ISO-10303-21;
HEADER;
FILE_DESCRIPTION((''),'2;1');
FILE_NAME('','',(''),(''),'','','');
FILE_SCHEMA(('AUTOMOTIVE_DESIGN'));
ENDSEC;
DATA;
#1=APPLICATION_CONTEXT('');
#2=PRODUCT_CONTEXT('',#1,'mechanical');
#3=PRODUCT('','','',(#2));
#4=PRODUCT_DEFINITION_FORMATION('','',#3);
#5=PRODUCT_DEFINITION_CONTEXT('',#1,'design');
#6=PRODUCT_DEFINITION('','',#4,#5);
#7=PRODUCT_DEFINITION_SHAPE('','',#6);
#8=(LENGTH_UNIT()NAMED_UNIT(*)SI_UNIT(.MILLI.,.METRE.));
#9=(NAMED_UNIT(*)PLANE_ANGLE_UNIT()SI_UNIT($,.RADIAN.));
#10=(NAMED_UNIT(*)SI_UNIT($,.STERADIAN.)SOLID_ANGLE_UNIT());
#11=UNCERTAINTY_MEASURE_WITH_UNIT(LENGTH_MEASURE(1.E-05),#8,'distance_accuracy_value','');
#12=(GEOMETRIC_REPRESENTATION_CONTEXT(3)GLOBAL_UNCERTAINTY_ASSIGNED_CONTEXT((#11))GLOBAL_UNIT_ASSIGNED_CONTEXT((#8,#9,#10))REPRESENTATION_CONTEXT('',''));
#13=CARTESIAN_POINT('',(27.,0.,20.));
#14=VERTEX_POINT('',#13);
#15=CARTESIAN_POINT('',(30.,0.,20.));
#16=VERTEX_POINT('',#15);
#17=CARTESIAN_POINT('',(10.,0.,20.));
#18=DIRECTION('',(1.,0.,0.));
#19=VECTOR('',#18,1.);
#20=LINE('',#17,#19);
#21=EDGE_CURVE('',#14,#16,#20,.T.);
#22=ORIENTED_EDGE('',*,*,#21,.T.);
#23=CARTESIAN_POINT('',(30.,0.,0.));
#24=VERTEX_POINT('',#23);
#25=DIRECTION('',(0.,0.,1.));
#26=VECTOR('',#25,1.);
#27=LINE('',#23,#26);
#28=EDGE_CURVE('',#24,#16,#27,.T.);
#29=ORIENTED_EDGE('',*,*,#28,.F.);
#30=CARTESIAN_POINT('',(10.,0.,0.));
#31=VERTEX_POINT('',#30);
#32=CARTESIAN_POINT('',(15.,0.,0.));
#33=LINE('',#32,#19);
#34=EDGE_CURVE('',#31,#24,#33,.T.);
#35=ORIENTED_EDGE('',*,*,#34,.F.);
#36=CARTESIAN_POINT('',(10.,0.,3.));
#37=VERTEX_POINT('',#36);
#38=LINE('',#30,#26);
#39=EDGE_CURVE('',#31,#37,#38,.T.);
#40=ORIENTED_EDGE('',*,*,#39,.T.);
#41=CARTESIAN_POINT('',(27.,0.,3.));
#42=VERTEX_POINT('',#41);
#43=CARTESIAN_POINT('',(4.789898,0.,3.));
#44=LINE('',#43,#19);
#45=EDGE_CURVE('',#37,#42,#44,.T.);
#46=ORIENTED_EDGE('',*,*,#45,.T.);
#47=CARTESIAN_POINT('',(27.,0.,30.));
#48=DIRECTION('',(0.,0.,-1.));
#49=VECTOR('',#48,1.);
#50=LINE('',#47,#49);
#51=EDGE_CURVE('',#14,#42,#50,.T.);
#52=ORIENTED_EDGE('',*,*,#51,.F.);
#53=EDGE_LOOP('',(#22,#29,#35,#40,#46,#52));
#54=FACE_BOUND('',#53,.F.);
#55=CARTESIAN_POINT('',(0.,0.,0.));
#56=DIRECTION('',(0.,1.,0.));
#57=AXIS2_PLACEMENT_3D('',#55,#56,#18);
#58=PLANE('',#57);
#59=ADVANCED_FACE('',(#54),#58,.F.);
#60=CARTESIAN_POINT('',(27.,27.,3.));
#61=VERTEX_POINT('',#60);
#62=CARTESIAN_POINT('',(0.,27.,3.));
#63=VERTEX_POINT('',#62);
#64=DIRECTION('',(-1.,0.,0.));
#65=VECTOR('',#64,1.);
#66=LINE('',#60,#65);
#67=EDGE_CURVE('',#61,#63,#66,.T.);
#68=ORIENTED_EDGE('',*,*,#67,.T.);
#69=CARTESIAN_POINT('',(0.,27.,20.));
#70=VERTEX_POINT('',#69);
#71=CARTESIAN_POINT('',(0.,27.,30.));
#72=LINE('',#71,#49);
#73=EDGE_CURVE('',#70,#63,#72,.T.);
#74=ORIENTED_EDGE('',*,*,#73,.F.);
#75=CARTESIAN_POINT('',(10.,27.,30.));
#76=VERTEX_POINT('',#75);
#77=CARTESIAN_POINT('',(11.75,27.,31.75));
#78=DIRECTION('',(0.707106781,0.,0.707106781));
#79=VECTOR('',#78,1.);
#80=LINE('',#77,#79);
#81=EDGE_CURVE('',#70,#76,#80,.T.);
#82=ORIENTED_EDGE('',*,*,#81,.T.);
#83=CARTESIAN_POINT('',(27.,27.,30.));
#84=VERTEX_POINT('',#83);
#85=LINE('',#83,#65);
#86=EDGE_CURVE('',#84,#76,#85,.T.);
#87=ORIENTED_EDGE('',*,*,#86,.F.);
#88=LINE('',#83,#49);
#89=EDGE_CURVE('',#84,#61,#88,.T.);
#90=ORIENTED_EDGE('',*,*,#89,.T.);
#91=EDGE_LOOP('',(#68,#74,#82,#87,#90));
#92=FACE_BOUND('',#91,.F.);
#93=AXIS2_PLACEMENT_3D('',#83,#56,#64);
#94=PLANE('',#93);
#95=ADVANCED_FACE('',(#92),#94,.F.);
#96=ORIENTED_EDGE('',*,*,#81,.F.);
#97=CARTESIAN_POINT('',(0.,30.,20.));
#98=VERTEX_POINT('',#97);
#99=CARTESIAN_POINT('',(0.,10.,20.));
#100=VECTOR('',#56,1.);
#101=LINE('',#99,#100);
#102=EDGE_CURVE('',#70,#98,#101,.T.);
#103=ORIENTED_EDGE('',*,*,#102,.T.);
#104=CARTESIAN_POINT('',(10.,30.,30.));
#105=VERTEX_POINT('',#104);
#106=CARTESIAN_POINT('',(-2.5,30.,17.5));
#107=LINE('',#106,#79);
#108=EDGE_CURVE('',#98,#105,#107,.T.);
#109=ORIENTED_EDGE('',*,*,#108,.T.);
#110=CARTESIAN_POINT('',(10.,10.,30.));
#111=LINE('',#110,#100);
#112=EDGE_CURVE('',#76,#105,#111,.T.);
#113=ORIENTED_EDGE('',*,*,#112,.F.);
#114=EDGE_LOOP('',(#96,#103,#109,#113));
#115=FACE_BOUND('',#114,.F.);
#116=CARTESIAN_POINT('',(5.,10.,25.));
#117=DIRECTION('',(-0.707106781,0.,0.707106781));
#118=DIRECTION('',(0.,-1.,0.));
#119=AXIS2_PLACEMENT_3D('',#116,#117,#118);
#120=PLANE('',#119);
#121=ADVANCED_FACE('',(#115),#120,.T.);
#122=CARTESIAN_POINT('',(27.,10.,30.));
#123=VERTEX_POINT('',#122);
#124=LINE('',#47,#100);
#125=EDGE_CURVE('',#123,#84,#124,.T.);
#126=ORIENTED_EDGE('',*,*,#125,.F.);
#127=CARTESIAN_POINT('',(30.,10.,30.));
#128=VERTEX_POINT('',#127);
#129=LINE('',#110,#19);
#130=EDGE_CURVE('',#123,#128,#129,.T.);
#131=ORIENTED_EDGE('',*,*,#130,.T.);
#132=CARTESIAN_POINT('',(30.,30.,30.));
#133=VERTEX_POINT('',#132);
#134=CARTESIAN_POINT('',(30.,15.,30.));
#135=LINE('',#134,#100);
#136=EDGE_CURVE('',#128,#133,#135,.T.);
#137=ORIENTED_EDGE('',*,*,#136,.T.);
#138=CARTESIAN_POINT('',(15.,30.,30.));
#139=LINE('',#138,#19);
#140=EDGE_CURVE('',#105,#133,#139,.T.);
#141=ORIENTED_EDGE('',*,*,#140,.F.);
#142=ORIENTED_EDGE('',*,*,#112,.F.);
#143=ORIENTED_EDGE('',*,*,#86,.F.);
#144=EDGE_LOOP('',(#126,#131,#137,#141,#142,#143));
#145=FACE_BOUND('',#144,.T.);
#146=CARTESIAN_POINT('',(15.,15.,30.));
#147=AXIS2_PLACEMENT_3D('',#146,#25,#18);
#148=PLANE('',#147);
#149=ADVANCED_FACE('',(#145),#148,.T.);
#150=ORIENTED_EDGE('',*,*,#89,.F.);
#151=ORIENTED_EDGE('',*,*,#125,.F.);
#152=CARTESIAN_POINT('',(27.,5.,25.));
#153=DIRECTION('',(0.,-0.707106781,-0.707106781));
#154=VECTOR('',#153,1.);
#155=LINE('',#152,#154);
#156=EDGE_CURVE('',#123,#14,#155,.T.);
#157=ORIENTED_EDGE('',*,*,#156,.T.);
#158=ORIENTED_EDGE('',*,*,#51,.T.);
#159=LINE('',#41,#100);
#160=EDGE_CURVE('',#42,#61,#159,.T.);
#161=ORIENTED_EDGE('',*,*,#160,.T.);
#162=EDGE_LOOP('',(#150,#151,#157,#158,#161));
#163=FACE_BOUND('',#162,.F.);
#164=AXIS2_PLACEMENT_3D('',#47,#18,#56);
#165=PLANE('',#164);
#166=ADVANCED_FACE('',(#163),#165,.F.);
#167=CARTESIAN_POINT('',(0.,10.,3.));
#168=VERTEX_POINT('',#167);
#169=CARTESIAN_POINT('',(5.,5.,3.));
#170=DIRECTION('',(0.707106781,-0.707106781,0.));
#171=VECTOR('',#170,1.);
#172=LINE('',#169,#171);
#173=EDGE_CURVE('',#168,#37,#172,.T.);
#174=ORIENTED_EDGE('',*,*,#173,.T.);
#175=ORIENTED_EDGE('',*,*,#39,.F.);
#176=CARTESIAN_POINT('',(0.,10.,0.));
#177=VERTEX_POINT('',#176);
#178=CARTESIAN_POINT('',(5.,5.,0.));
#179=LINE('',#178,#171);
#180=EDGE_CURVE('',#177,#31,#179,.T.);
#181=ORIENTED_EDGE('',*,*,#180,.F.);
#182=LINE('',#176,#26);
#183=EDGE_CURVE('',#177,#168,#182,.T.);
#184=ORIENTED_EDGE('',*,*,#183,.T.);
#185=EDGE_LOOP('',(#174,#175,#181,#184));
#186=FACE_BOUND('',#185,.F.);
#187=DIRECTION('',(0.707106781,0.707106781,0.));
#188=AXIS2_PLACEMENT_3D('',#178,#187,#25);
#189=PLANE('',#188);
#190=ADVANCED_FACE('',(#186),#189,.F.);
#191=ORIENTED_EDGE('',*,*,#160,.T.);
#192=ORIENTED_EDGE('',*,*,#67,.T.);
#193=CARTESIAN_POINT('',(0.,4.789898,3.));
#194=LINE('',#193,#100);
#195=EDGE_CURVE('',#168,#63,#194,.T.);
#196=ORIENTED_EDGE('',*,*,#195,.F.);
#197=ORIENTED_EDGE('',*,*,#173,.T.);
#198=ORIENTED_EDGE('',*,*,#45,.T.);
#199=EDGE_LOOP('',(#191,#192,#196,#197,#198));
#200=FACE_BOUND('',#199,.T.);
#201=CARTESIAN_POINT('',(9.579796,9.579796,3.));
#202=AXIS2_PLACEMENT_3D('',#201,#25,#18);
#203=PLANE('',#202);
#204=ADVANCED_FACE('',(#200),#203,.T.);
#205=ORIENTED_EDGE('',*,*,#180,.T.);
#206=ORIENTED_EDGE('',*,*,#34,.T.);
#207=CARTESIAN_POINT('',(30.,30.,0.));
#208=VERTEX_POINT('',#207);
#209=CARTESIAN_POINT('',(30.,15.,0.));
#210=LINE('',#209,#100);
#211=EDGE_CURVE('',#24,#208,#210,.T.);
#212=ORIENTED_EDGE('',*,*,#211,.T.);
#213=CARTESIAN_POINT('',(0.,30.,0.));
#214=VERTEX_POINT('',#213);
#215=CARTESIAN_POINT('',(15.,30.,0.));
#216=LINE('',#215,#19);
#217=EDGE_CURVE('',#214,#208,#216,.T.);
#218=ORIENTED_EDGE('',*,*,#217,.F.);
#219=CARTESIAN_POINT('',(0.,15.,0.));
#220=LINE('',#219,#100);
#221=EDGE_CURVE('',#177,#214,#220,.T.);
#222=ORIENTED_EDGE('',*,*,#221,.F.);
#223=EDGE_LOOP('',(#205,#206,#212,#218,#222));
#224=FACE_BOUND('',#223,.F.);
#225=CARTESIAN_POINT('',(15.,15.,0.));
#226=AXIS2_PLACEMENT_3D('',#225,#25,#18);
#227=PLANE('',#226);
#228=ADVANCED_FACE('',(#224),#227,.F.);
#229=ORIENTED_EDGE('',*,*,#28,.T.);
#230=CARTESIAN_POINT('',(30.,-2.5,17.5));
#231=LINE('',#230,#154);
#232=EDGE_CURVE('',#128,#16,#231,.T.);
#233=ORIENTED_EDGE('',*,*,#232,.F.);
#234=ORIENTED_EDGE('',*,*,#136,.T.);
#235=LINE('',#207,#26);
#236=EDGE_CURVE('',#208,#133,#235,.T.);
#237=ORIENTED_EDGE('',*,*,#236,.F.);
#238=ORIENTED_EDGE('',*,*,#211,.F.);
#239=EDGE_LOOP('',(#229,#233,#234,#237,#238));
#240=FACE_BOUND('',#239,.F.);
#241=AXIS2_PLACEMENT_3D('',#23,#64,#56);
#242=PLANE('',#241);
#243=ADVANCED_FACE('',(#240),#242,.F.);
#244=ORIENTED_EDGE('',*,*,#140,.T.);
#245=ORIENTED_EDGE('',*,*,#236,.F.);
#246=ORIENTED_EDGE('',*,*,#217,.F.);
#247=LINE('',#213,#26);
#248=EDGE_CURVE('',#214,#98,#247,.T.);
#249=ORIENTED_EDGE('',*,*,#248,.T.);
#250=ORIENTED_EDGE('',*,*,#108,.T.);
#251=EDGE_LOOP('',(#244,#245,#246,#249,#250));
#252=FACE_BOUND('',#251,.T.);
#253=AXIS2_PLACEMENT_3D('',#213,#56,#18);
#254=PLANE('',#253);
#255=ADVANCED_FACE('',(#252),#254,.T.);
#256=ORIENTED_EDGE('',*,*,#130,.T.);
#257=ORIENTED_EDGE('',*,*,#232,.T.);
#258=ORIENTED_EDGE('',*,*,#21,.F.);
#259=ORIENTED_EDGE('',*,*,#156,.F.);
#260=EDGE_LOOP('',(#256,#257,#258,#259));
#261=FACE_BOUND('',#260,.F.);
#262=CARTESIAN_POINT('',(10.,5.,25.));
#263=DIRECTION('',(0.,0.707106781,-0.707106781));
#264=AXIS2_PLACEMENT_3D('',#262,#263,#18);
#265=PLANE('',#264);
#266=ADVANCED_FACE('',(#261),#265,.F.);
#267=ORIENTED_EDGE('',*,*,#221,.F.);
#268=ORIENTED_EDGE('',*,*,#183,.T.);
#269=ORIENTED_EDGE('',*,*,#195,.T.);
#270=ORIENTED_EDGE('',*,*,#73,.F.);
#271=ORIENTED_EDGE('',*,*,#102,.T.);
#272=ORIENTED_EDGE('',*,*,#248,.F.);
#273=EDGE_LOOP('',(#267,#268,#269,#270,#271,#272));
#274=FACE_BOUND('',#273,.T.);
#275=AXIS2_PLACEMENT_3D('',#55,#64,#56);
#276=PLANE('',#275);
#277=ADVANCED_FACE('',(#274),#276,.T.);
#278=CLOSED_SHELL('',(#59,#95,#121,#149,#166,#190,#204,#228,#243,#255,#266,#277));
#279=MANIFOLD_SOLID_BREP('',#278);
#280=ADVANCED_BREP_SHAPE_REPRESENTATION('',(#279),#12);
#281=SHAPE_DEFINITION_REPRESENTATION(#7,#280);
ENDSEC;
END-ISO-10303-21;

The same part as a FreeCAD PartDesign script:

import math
import FreeCAD as App
import Part
import Sketcher

V = App.Vector


def edges_at(feature, points):
    """Names of the edges that pass closest to the given points."""
    edges = feature.Shape.Edges
    near = lambda p: min(range(len(edges)), key=lambda i: edges[i].distToShape(Part.Vertex(*p))[0])
    return sorted({f"Edge{near(p) + 1}" for p in points})


def add_polygon(sketch, points):
    """Adds a closed chain of lines whose ends are joined by coincident constraints."""
    first, n = sketch.GeometryCount, len(points)
    for a, b in zip(points, points[1:] + points[:1]):
        sketch.addGeometry(Part.LineSegment(App.Vector(*a, 0), App.Vector(*b, 0)), False)
    for i in range(n):
        sketch.addConstraint(Sketcher.Constraint("Coincident", first + i, 2, first + (i + 1) % n, 1))

doc = App.newDocument("Part")
body = doc.addObject("PartDesign::Body", "Body")

sketch1 = body.newObject("Sketcher::SketchObject", "Sketch")
sketch1.AttachmentSupport = (doc.getObject("XY_Plane"), [""])
sketch1.MapMode = "FlatFace"
add_polygon(sketch1, [(0, 30), (0, 0), (30, 0), (30, 30)])
sketch1.addConstraint(Sketcher.Constraint("Vertical", 0))
sketch1.addConstraint(Sketcher.Constraint("Horizontal", 1))
sketch1.addConstraint(Sketcher.Constraint("Vertical", 2))
sketch1.addConstraint(Sketcher.Constraint("Horizontal", 3))
sketch1.addConstraint(Sketcher.Constraint("Coincident", 0, 2, -1, 1))
sketch1.addConstraint(Sketcher.Constraint("Equal", 3, 0))
sketch1.addConstraint(Sketcher.Constraint("DistanceX", 1, 1, 1, 2, 30.0))
pad1 = body.newObject("PartDesign::Pad", "Pad")
pad1.Profile = sketch1
pad1.Length = 30
doc.recompute()

chamfer = body.newObject("PartDesign::Chamfer", "Chamfer")
chamfer.Base = (pad1, edges_at(pad1, [(0, 0, 15)]))
chamfer.Size = 10
doc.recompute()

chamfer2 = body.newObject("PartDesign::Chamfer", "Chamfer001")
chamfer2.Base = (chamfer, edges_at(chamfer, [(20, 0, 30), (5, 5, 30), (0, 20, 30)]))
chamfer2.Size = 10

sketch2 = body.newObject("Sketcher::SketchObject", "Sketch001")
sketch2.AttachmentSupport = (doc.getObject("XY_Plane"), [""])
sketch2.MapMode = "FlatFace"
sketch2.AttachmentOffset = App.Placement(V(0, 0, 30), App.Rotation())
sketch2.addGeometry(Part.LineSegment(V(27, 27, 0), V(0, 27, 0)), False)
sketch2.addGeometry(Part.ArcOfCircle(Part.Circle(V(8, 8, 0), V(0, 0, 1), 21), math.radians(112), math.radians(338)), False)
sketch2.addGeometry(Part.LineSegment(V(27, 0, 0), V(27, 27, 0)), False)
sketch2.addConstraint(Sketcher.Constraint("Coincident", 0, 2, 1, 1))
sketch2.addConstraint(Sketcher.Constraint("Coincident", 1, 2, 2, 1))
sketch2.addConstraint(Sketcher.Constraint("Coincident", 2, 2, 0, 1))
sketch2.addConstraint(Sketcher.Constraint("Horizontal", 0))
sketch2.addConstraint(Sketcher.Constraint("Vertical", 2))
sketch2.addConstraint(Sketcher.Constraint("PointOnObject", 0, 2, -2))
sketch2.addConstraint(Sketcher.Constraint("PointOnObject", 1, 2, -1))
sketch2.addConstraint(Sketcher.Constraint("Equal", 0, 2))
sketch2.addConstraint(Sketcher.Constraint("DistanceX", 0, 2, 0, 1, 27.0))
sketch2.addConstraint(Sketcher.Constraint("Radius", 1, 20.71092))
pocket1 = body.newObject("PartDesign::Pocket", "Pocket")
pocket1.Profile = sketch2
pocket1.Length = 27

doc.recompute()
